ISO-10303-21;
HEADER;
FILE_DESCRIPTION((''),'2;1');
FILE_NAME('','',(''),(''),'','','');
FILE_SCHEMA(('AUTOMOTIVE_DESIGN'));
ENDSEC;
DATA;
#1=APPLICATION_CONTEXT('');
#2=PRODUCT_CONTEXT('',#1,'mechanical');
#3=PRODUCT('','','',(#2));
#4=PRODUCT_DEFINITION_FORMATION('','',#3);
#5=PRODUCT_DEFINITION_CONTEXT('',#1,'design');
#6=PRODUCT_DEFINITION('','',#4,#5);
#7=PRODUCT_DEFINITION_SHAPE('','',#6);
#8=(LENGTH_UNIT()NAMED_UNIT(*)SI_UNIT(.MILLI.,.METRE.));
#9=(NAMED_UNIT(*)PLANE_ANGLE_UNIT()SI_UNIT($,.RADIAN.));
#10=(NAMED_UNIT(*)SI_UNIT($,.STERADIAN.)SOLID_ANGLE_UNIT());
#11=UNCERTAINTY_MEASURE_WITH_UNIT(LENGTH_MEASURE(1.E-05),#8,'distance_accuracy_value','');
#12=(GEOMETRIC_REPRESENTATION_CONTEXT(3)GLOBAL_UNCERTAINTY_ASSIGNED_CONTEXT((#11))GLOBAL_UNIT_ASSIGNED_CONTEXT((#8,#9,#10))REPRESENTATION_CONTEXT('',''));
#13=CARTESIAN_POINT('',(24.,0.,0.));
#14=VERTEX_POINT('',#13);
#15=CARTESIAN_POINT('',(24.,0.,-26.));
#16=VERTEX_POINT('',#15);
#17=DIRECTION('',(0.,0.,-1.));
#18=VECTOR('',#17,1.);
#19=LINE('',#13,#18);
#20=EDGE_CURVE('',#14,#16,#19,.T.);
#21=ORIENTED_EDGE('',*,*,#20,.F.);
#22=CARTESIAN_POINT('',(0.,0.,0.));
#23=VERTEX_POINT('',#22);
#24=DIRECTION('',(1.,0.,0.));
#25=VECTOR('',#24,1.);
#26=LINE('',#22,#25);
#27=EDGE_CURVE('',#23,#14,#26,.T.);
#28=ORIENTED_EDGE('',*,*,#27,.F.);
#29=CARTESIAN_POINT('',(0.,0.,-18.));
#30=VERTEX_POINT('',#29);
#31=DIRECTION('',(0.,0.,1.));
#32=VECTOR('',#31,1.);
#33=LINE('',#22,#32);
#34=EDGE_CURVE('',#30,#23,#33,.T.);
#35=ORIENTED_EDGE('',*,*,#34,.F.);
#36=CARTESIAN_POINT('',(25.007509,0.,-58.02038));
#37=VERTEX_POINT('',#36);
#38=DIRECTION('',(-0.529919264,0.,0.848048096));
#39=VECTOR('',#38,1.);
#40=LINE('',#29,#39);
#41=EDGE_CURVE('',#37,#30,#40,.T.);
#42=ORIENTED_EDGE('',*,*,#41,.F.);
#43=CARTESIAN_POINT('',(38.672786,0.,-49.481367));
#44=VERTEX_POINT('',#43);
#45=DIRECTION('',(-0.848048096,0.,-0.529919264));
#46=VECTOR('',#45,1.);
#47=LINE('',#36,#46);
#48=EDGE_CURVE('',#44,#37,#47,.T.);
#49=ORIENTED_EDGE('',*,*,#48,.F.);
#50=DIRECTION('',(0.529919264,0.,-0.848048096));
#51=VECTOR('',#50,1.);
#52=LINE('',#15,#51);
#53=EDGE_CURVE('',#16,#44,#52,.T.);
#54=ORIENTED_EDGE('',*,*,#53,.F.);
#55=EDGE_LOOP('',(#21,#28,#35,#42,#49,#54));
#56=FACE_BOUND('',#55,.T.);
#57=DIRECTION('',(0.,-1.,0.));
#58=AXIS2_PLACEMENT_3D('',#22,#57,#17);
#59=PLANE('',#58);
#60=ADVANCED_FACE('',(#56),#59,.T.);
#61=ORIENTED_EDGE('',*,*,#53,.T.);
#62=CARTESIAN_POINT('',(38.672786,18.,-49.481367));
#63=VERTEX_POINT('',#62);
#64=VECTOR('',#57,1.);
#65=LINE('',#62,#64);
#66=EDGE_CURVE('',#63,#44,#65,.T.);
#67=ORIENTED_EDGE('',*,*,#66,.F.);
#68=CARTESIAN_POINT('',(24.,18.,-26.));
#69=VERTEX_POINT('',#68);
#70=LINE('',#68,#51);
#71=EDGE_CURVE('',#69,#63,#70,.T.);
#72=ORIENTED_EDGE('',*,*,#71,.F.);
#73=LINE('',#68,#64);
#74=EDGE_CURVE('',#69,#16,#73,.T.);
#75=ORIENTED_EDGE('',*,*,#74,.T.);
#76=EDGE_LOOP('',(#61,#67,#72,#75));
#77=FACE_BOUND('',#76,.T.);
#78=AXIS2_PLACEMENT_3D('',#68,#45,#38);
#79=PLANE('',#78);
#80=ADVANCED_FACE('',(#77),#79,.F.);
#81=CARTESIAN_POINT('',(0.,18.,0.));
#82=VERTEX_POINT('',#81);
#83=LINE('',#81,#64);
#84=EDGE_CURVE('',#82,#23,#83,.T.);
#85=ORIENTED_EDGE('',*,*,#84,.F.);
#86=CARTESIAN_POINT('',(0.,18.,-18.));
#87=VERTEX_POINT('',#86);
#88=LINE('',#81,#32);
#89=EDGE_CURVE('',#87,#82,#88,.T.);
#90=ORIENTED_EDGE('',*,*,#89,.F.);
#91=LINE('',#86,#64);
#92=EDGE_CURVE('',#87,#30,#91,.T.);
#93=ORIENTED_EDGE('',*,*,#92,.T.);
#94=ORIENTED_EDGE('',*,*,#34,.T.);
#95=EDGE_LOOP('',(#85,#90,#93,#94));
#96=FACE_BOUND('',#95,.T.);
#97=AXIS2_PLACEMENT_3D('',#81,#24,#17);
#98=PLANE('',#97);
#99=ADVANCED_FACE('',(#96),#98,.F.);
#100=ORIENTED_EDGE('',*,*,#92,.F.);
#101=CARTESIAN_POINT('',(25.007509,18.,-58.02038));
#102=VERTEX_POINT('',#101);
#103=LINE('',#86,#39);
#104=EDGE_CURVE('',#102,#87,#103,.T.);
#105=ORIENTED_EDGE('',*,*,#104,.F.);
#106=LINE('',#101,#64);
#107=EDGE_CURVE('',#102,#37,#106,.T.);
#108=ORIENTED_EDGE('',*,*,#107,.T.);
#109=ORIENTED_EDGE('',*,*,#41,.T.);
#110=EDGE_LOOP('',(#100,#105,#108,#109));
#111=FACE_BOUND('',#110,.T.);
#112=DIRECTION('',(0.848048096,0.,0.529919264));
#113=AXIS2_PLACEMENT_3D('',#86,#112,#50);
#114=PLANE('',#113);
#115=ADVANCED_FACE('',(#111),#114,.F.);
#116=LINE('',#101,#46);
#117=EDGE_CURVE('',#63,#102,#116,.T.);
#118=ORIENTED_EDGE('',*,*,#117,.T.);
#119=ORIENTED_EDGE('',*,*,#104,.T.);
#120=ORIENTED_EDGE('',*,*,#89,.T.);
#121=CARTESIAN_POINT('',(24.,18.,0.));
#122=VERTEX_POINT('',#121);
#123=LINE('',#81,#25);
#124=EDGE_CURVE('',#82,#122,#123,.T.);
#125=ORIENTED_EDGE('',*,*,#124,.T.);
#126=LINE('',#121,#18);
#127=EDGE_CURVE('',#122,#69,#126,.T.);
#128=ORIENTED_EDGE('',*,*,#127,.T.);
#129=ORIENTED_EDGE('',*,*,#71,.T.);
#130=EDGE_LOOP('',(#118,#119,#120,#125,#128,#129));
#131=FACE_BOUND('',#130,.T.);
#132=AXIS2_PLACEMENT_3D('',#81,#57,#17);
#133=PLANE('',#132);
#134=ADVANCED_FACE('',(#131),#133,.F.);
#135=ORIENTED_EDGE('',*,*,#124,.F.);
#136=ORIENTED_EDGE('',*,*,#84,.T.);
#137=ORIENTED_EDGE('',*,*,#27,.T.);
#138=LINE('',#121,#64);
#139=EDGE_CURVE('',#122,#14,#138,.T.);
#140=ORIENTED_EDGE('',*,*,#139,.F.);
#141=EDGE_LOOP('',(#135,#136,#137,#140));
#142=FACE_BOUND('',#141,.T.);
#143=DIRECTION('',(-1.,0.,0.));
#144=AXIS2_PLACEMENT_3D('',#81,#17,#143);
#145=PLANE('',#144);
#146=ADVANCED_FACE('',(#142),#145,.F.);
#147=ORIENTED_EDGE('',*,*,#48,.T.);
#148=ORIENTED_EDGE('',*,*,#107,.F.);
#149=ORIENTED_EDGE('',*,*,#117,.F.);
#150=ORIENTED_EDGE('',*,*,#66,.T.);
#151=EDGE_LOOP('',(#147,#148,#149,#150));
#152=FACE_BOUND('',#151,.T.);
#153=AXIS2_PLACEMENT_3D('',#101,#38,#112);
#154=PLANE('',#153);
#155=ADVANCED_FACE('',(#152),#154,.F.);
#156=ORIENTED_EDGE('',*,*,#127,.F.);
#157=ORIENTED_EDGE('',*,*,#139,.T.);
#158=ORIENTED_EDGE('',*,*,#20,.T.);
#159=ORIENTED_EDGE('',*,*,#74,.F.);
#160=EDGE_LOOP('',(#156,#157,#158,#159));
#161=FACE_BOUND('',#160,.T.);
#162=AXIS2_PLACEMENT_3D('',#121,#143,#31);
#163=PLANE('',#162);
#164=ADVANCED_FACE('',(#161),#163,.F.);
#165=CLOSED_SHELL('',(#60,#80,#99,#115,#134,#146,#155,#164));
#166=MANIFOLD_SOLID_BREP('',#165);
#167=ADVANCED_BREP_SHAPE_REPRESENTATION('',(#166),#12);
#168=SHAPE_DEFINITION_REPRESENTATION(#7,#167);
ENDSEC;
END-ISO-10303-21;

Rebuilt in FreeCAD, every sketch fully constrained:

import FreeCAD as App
import Part
import Sketcher
from FreeCAD import Vector
Q = App.Units.Quantity


def add_polygon(sketch, points):
    """Adds a closed chain of lines whose ends are joined by coincident constraints."""
    first, n = sketch.GeometryCount, len(points)
    for a, b in zip(points, points[1:] + points[:1]):
        sketch.addGeometry(Part.LineSegment(App.Vector(*a, 0), App.Vector(*b, 0)), False)
    for i in range(n):
        sketch.addConstraint(Sketcher.Constraint("Coincident", first + i, 2, first + (i + 1) % n, 1))

doc = App.newDocument("Part")
body = doc.addObject("PartDesign::Body", "Body")

sketch1 = body.newObject("Sketcher::SketchObject", "Sketch")
sketch1.AttachmentSupport = (doc.getObject("XZ_Plane"), [""])
sketch1.MapMode = "FlatFace"
add_polygon(sketch1, [(0, 0), (24, 0), (24, -26), (39, -49), (25, -58), (0, -18)])
sketch1.addConstraint([
    Sketcher.Constraint("Horizontal", 0),
    Sketcher.Constraint("Vertical", 1),
    Sketcher.Constraint("Vertical", 5),
    Sketcher.Constraint("Coincident", 5, 2, -1, 1),
    Sketcher.Constraint("Perpendicular", 2, 3),
    Sketcher.Constraint("Perpendicular", 3, 4),
    Sketcher.Constraint("DistanceX", 0, 1, 0, 2, 24.0),
    Sketcher.Constraint("DistanceY", 1, 2, 1, 1, 26.0),
    Sketcher.Constraint("DistanceY", 5, 1, 5, 2, 18.0),
    Sketcher.Constraint("Angle", 2, Q("-58 deg")),
    Sketcher.Constraint("Distance", 2, 27.688721),
])
pad1 = body.newObject("PartDesign::Pad", "Pad")
pad1.Profile = sketch1
pad1.Length = 18
pad1.Reversed = True

doc.recompute()
